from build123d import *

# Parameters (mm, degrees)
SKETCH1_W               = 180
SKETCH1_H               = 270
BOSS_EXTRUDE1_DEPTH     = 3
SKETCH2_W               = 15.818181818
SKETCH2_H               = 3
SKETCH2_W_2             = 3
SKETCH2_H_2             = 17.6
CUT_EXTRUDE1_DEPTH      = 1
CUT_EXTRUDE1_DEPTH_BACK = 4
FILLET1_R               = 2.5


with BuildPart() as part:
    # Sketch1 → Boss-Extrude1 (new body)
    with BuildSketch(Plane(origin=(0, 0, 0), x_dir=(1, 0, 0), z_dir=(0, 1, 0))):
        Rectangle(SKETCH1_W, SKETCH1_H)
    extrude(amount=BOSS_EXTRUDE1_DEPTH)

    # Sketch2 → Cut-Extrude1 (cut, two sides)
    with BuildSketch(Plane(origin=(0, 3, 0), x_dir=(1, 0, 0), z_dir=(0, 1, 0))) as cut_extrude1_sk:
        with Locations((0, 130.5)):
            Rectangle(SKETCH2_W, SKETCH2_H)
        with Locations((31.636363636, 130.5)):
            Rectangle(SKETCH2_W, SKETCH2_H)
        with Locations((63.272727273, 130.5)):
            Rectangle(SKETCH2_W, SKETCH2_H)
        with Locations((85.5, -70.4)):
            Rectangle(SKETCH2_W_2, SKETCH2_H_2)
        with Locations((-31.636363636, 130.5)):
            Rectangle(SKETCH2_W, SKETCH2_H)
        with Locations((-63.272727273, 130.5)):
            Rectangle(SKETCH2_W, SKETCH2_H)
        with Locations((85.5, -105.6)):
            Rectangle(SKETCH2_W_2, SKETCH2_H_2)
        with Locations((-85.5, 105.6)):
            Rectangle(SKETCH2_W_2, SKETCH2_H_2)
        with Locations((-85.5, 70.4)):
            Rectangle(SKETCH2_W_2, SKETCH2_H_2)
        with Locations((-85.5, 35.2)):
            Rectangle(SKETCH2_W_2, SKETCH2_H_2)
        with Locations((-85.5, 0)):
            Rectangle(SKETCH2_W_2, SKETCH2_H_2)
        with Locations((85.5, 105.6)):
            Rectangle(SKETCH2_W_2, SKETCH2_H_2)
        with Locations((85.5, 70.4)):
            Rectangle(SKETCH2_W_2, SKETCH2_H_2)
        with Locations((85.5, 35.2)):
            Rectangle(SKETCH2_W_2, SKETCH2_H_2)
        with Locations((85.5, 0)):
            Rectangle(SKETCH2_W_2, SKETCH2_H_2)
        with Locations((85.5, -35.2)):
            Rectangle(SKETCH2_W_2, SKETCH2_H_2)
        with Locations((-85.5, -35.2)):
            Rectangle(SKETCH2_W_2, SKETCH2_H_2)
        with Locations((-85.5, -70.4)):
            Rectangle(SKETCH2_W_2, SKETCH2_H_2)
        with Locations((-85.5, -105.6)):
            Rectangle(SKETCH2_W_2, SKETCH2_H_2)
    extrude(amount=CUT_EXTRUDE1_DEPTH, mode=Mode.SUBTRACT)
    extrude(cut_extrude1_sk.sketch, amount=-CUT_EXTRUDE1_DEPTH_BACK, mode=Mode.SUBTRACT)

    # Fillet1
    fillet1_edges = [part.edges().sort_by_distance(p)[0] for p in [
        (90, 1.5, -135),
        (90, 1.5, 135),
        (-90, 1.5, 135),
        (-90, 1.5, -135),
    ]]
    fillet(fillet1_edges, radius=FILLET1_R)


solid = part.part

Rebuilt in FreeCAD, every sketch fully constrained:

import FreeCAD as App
import Part
import Sketcher
Q = App.Units.Quantity


def edges_at(feature, points):
    """Names of the edges that pass closest to the given points."""
    edges = feature.Shape.Edges
    near = lambda p: min(range(len(edges)), key=lambda i: edges[i].distToShape(Part.Vertex(*p))[0])
    return sorted({f"Edge{near(p) + 1}" for p in points})


def add_polygon(sketch, points):
    """Adds a closed chain of lines whose ends are joined by coincident constraints."""
    first, n = sketch.GeometryCount, len(points)
    for a, b in zip(points, points[1:] + points[:1]):
        sketch.addGeometry(Part.LineSegment(App.Vector(*a, 0), App.Vector(*b, 0)), False)
    for i in range(n):
        sketch.addConstraint(Sketcher.Constraint("Coincident", first + i, 2, first + (i + 1) % n, 1))

doc = App.newDocument("Part")
body = doc.addObject("PartDesign::Body", "Body")

# Sketch on XZ plane
sketch1 = body.newObject("Sketcher::SketchObject", "Sketch")
sketch1.AttachmentSupport = (doc.getObject("XZ_Plane"), [""])
sketch1.MapMode = "FlatFace"
add_polygon(sketch1, [(-90, -135), (-90, 135), (90, 135), (90, -135)])  # lines 0-3
sketch1.addConstraint(Sketcher.Constraint("Vertical", 0))
sketch1.addConstraint(Sketcher.Constraint("Horizontal", 1))
sketch1.addConstraint(Sketcher.Constraint("Vertical", 2))
sketch1.addConstraint(Sketcher.Constraint("Horizontal", 3))
sketch1.addConstraint(Sketcher.Constraint("Symmetric", 0, 2, 2, 2, -1, 1))
sketch1.addConstraint(Sketcher.Constraint("DistanceX", 1, 1, 1, 2, Q("180 mm")))
sketch1.addConstraint(Sketcher.Constraint("DistanceY", 0, 1, 0, 2, Q("270 mm")))
pad1 = body.newObject("PartDesign::Pad", "Pad")
pad1.Profile = sketch1
pad1.Length = 3
pad1.Reversed = True

# Sketch on XZ plane
sketch2 = body.newObject("Sketcher::SketchObject", "Sketch001")
sketch2.AttachmentSupport = (doc.getObject("XZ_Plane"), [""])
sketch2.MapMode = "FlatFace"
sketch2.AttachmentOffset = App.Placement(App.Vector(0, 0, -3), App.Rotation())
add_polygon(sketch2, [(-7.909091, -132), (-7.909091, -129), (7.909091, -129), (7.909091, -132)])  # lines 0-3
add_polygon(sketch2, [(23.727273, -132), (23.727273, -129), (39.545455, -129), (39.545455, -132)])  # lines 4-7
add_polygon(sketch2, [(55.363636, -132), (55.363636, -129), (71.181818, -129), (71.181818, -132)])  # lines 8-11
add_polygon(sketch2, [(84, 61.6), (84, 79.2), (87, 79.2), (87, 61.6)])  # lines 12-15
add_polygon(sketch2, [(-39.545455, -132), (-39.545455, -129), (-23.727273, -129), (-23.727273, -132)])  # lines 16-19
add_polygon(sketch2, [(-71.181818, -132), (-71.181818, -129), (-55.363636, -129), (-55.363636, -132)])  # lines 20-23
add_polygon(sketch2, [(84, 96.8), (84, 114.4), (87, 114.4), (87, 96.8)])  # lines 24-27
add_polygon(sketch2, [(-87, -114.4), (-87, -96.8), (-84, -96.8), (-84, -114.4)])  # lines 28-31
add_polygon(sketch2, [(-87, -79.2), (-87, -61.6), (-84, -61.6), (-84, -79.2)])  # lines 32-35
add_polygon(sketch2, [(-87, -44), (-87, -26.4), (-84, -26.4), (-84, -44)])  # lines 36-39
add_polygon(sketch2, [(-87, -8.8), (-87, 8.8), (-84, 8.8), (-84, -8.8)])  # lines 40-43
add_polygon(sketch2, [(84, -114.4), (84, -96.8), (87, -96.8), (87, -114.4)])  # lines 44-47
add_polygon(sketch2, [(84, -79.2), (84, -61.6), (87, -61.6), (87, -79.2)])  # lines 48-51
add_polygon(sketch2, [(84, -44), (84, -26.4), (87, -26.4), (87, -44)])  # lines 52-55
add_polygon(sketch2, [(84, -8.8), (84, 8.8), (87, 8.8), (87, -8.8)])  # lines 56-59
add_polygon(sketch2, [(84, 26.4), (84, 44), (87, 44), (87, 26.4)])  # lines 60-63
add_polygon(sketch2, [(-87, 26.4), (-87, 44), (-84, 44), (-84, 26.4)])  # lines 64-67
add_polygon(sketch2, [(-87, 61.6), (-87, 79.2), (-84, 79.2), (-84, 61.6)])  # lines 68-71
add_polygon(sketch2, [(-87, 96.8), (-87, 114.4), (-84, 114.4), (-84, 96.8)])  # lines 72-75
sketch2.addConstraint(Sketcher.Constraint("Vertical", 0))
sketch2.addConstraint(Sketcher.Constraint("Horizontal", 1))
sketch2.addConstraint(Sketcher.Constraint("Vertical", 2))
sketch2.addConstraint(Sketcher.Constraint("Horizontal", 3))
sketch2.addConstraint(Sketcher.Constraint("Vertical", 4))
sketch2.addConstraint(Sketcher.Constraint("Horizontal", 5))
sketch2.addConstraint(Sketcher.Constraint("Vertical", 6))
sketch2.addConstraint(Sketcher.Constraint("Horizontal", 7))
sketch2.addConstraint(Sketcher.Constraint("Vertical", 8))
sketch2.addConstraint(Sketcher.Constraint("Horizontal", 9))
sketch2.addConstraint(Sketcher.Constraint("Vertical", 10))
sketch2.addConstraint(Sketcher.Constraint("Horizontal", 11))
sketch2.addConstraint(Sketcher.Constraint("Vertical", 12))
sketch2.addConstraint(Sketcher.Constraint("Horizontal", 13))
sketch2.addConstraint(Sketcher.Constraint("Vertical", 14))
sketch2.addConstraint(Sketcher.Constraint("Horizontal", 15))
sketch2.addConstraint(Sketcher.Constraint("Vertical", 16))
sketch2.addConstraint(Sketcher.Constraint("Horizontal", 17))
sketch2.addConstraint(Sketcher.Constraint("Vertical", 18))
sketch2.addConstraint(Sketcher.Constraint("Horizontal", 19))
sketch2.addConstraint(Sketcher.Constraint("Vertical", 20))
sketch2.addConstraint(Sketcher.Constraint("Horizontal", 21))
sketch2.addConstraint(Sketcher.Constraint("Vertical", 22))
sketch2.addConstraint(Sketcher.Constraint("Horizontal", 23))
sketch2.addConstraint(Sketcher.Constraint("Vertical", 24))
sketch2.addConstraint(Sketcher.Constraint("Horizontal", 25))
sketch2.addConstraint(Sketcher.Constraint("Vertical", 26))
sketch2.addConstraint(Sketcher.Constraint("Horizontal", 27))
sketch2.addConstraint(Sketcher.Constraint("Vertical", 28))
sketch2.addConstraint(Sketcher.Constraint("Horizontal", 29))
sketch2.addConstraint(Sketcher.Constraint("Vertical", 30))
sketch2.addConstraint(Sketcher.Constraint("Horizontal", 31))
sketch2.addConstraint(Sketcher.Constraint("Vertical", 32))
sketch2.addConstraint(Sketcher.Constraint("Horizontal", 33))
sketch2.addConstraint(Sketcher.Constraint("Vertical", 34))
sketch2.addConstraint(Sketcher.Constraint("Horizontal", 35))
sketch2.addConstraint(Sketcher.Constraint("Vertical", 36))
sketch2.addConstraint(Sketcher.Constraint("Horizontal", 37))
sketch2.addConstraint(Sketcher.Constraint("Vertical", 38))
sketch2.addConstraint(Sketcher.Constraint("Horizontal", 39))
sketch2.addConstraint(Sketcher.Constraint("Vertical", 40))
sketch2.addConstraint(Sketcher.Constraint("Horizontal", 41))
sketch2.addConstraint(Sketcher.Constraint("Vertical", 42))
sketch2.addConstraint(Sketcher.Constraint("Horizontal", 43))
sketch2.addConstraint(Sketcher.Constraint("Vertical", 44))
sketch2.addConstraint(Sketcher.Constraint("Horizontal", 45))
sketch2.addConstraint(Sketcher.Constraint("Vertical", 46))
sketch2.addConstraint(Sketcher.Constraint("Horizontal", 47))
sketch2.addConstraint(Sketcher.Constraint("Vertical", 48))
sketch2.addConstraint(Sketcher.Constraint("Horizontal", 49))
sketch2.addConstraint(Sketcher.Constraint("Vertical", 50))
sketch2.addConstraint(Sketcher.Constraint("Horizontal", 51))
sketch2.addConstraint(Sketcher.Constraint("Vertical", 52))
sketch2.addConstraint(Sketcher.Constraint("Horizontal", 53))
sketch2.addConstraint(Sketcher.Constraint("Vertical", 54))
sketch2.addConstraint(Sketcher.Constraint("Horizontal", 55))
sketch2.addConstraint(Sketcher.Constraint("Vertical", 56))
sketch2.addConstraint(Sketcher.Constraint("Horizontal", 57))
sketch2.addConstraint(Sketcher.Constraint("Vertical", 58))
sketch2.addConstraint(Sketcher.Constraint("Horizontal", 59))
sketch2.addConstraint(Sketcher.Constraint("Vertical", 60))
sketch2.addConstraint(Sketcher.Constraint("Horizontal", 61))
sketch2.addConstraint(Sketcher.Constraint("Vertical", 62))
sketch2.addConstraint(Sketcher.Constraint("Horizontal", 63))
sketch2.addConstraint(Sketcher.Constraint("Vertical", 64))
sketch2.addConstraint(Sketcher.Constraint("Horizontal", 65))
sketch2.addConstraint(Sketcher.Constraint("Vertical", 66))
sketch2.addConstraint(Sketcher.Constraint("Horizontal", 67))
sketch2.addConstraint(Sketcher.Constraint("Vertical", 68))
sketch2.addConstraint(Sketcher.Constraint("Horizontal", 69))
sketch2.addConstraint(Sketcher.Constraint("Vertical", 70))
sketch2.addConstraint(Sketcher.Constraint("Horizontal", 71))
sketch2.addConstraint(Sketcher.Constraint("Vertical", 72))
sketch2.addConstraint(Sketcher.Constraint("Horizontal", 73))
sketch2.addConstraint(Sketcher.Constraint("Vertical", 74))
sketch2.addConstraint(Sketcher.Constraint("Horizontal", 75))
sketch2.addConstraint(Sketcher.Constraint("Symmetric", 26, 2, 28, 2, -1, 1))
sketch2.addConstraint(Sketcher.Constraint("Symmetric", 24, 2, 30, 2, -1, 1))
sketch2.addConstraint(Sketcher.Constraint("Symmetric", 14, 2, 32, 2, -1, 1))
sketch2.addConstraint(Sketcher.Constraint("Symmetric", 12, 2, 34, 2, -1, 1))
sketch2.addConstraint(Sketcher.Constraint("Symmetric", 42, 2, 56, 2, -1, 1))
sketch2.addConstraint(Sketcher.Constraint("Symmetric", 40, 2, 58, 2, -1, 1))
sketch2.addConstraint(Sketcher.Constraint("Symmetric", 38, 2, 60, 2, -1, 1))
sketch2.addConstraint(Sketcher.Constraint("Symmetric", 36, 2, 62, 2, -1, 1))
sketch2.addConstraint(Sketcher.Constraint("Symmetric", 54, 2, 64, 2, -1, 1))
sketch2.addConstraint(Sketcher.Constraint("Symmetric", 52, 2, 66, 2, -1, 1))
sketch2.addConstraint(Sketcher.Constraint("Symmetric", 50, 2, 68, 2, -1, 1))
sketch2.addConstraint(Sketcher.Constraint("Symmetric", 48, 2, 70, 2, -1, 1))
sketch2.addConstraint(Sketcher.Constraint("Symmetric", 46, 2, 72, 2, -1, 1))
sketch2.addConstraint(Sketcher.Constraint("Symmetric", 44, 2, 74, 2, -1, 1))
sketch2.addConstraint(Sketcher.Constraint("Symmetric", 5, 2, 16, 2, -2))
sketch2.addConstraint(Sketcher.Constraint("Symmetric", 7, 2, 18, 2, -2))
sketch2.addConstraint(Sketcher.Constraint("Symmetric", 9, 2, 20, 2, -2))
sketch2.addConstraint(Sketcher.Constraint("Symmetric", 11, 2, 22, 2, -2))
sketch2.addConstraint(Sketcher.Constraint("Symmetric", 29, 2, 44, 2, -2))
sketch2.addConstraint(Sketcher.Constraint("Symmetric", 31, 2, 46, 2, -2))
sketch2.addConstraint(Sketcher.Constraint("Symmetric", 33, 2, 48, 2, -2))
sketch2.addConstraint(Sketcher.Constraint("Symmetric", 35, 2, 50, 2, -2))
sketch2.addConstraint(Sketcher.Constraint("Symmetric", 37, 2, 52, 2, -2))
sketch2.addConstraint(Sketcher.Constraint("Symmetric", 39, 2, 54, 2, -2))
sketch2.addConstraint(Sketcher.Constraint("Horizontal", 1, 2, 4, 2))
sketch2.addConstraint(Sketcher.Constraint("Horizontal", 3, 2, 6, 2))
sketch2.addConstraint(Sketcher.Constraint("Horizontal", 5, 2, 8, 2))
sketch2.addConstraint(Sketcher.Constraint("Horizontal", 7, 2, 10, 2))
sketch2.addConstraint(Sketcher.Constraint("Horizontal", 41, 2, 56, 2))
sketch2.addConstraint(Sketcher.Constraint("Vertical", 15, 2, 24, 2))
sketch2.addConstraint(Sketcher.Constraint("Vertical", 14, 2, 25, 2))
sketch2.addConstraint(Sketcher.Constraint("Vertical", 35, 2, 36, 2))
sketch2.addConstraint(Sketcher.Constraint("Vertical", 34, 2, 37, 2))
sketch2.addConstraint(Sketcher.Constraint("Vertical", 39, 2, 40, 2))
sketch2.addConstraint(Sketcher.Constraint("Vertical", 38, 2, 41, 2))
sketch2.addConstraint(Sketcher.Constraint("Equal", 3, 5))
sketch2.addConstraint(Sketcher.Constraint("Equal", 7, 9))
sketch2.addConstraint(Sketcher.Constraint("Equal", 75, 0))
sketch2.addConstraint(Sketcher.Constraint("Equal", 14, 24))
sketch2.addConstraint(Sketcher.Constraint("Equal", 34, 36))
sketch2.addConstraint(Sketcher.Constraint("Equal", 38, 40))
sketch2.addConstraint(Sketcher.Constraint("DistanceX", 13, 1, 13, 2, Q("3 mm")))
sketch2.addConstraint(Sketcher.Constraint("DistanceY", 12, 1, 12, 2, Q("17.6 mm")))
sketch2.addConstraint(Sketcher.Constraint("DistanceY", 0, 2, -1, 1, Q("129 mm")))
sketch2.addConstraint(Sketcher.Constraint("DistanceX", -1, 1, 12, 2, Q("84 mm")))
sketch2.addConstraint(Sketcher.Constraint("DistanceY", 38, 2, -1, 1, Q("44 mm")))
sketch2.addConstraint(Sketcher.Constraint("DistanceY", -1, 1, 12, 2, Q("79.2 mm")))
sketch2.addConstraint(Sketcher.Constraint("DistanceY", -1, 1, 24, 2, Q("114.4 mm")))
sketch2.addConstraint(Sketcher.Constraint("DistanceX", 1, 1, 1, 2, Q("15.818182 mm")))
sketch2.addConstraint(Sketcher.Constraint("DistanceX", 0, 2, -1, 1, Q("7.909091 mm")))
sketch2.addConstraint(Sketcher.Constraint("DistanceX", -1, 1, 9, 2, Q("71.181818 mm")))
sketch2.addConstraint(Sketcher.Constraint("DistanceX", -1, 1, 4, 2, Q("23.727273 mm")))
pocket1 = body.newObject("PartDesign::Pocket", "Pocket")
pocket1.Profile = sketch2
pocket1.Type = "ThroughAll"
pocket1.Midplane = True
doc.recompute()

fillet = body.newObject("PartDesign::Fillet", "Fillet")
fillet.Base = (pocket1, edges_at(pocket1, [
    (90, 1.5, -135),
    (90, 1.5, 135),
    (-90, 1.5, 135),
    (-90, 1.5, -135),
]))
fillet.Radius = 2.5

doc.recompute()
